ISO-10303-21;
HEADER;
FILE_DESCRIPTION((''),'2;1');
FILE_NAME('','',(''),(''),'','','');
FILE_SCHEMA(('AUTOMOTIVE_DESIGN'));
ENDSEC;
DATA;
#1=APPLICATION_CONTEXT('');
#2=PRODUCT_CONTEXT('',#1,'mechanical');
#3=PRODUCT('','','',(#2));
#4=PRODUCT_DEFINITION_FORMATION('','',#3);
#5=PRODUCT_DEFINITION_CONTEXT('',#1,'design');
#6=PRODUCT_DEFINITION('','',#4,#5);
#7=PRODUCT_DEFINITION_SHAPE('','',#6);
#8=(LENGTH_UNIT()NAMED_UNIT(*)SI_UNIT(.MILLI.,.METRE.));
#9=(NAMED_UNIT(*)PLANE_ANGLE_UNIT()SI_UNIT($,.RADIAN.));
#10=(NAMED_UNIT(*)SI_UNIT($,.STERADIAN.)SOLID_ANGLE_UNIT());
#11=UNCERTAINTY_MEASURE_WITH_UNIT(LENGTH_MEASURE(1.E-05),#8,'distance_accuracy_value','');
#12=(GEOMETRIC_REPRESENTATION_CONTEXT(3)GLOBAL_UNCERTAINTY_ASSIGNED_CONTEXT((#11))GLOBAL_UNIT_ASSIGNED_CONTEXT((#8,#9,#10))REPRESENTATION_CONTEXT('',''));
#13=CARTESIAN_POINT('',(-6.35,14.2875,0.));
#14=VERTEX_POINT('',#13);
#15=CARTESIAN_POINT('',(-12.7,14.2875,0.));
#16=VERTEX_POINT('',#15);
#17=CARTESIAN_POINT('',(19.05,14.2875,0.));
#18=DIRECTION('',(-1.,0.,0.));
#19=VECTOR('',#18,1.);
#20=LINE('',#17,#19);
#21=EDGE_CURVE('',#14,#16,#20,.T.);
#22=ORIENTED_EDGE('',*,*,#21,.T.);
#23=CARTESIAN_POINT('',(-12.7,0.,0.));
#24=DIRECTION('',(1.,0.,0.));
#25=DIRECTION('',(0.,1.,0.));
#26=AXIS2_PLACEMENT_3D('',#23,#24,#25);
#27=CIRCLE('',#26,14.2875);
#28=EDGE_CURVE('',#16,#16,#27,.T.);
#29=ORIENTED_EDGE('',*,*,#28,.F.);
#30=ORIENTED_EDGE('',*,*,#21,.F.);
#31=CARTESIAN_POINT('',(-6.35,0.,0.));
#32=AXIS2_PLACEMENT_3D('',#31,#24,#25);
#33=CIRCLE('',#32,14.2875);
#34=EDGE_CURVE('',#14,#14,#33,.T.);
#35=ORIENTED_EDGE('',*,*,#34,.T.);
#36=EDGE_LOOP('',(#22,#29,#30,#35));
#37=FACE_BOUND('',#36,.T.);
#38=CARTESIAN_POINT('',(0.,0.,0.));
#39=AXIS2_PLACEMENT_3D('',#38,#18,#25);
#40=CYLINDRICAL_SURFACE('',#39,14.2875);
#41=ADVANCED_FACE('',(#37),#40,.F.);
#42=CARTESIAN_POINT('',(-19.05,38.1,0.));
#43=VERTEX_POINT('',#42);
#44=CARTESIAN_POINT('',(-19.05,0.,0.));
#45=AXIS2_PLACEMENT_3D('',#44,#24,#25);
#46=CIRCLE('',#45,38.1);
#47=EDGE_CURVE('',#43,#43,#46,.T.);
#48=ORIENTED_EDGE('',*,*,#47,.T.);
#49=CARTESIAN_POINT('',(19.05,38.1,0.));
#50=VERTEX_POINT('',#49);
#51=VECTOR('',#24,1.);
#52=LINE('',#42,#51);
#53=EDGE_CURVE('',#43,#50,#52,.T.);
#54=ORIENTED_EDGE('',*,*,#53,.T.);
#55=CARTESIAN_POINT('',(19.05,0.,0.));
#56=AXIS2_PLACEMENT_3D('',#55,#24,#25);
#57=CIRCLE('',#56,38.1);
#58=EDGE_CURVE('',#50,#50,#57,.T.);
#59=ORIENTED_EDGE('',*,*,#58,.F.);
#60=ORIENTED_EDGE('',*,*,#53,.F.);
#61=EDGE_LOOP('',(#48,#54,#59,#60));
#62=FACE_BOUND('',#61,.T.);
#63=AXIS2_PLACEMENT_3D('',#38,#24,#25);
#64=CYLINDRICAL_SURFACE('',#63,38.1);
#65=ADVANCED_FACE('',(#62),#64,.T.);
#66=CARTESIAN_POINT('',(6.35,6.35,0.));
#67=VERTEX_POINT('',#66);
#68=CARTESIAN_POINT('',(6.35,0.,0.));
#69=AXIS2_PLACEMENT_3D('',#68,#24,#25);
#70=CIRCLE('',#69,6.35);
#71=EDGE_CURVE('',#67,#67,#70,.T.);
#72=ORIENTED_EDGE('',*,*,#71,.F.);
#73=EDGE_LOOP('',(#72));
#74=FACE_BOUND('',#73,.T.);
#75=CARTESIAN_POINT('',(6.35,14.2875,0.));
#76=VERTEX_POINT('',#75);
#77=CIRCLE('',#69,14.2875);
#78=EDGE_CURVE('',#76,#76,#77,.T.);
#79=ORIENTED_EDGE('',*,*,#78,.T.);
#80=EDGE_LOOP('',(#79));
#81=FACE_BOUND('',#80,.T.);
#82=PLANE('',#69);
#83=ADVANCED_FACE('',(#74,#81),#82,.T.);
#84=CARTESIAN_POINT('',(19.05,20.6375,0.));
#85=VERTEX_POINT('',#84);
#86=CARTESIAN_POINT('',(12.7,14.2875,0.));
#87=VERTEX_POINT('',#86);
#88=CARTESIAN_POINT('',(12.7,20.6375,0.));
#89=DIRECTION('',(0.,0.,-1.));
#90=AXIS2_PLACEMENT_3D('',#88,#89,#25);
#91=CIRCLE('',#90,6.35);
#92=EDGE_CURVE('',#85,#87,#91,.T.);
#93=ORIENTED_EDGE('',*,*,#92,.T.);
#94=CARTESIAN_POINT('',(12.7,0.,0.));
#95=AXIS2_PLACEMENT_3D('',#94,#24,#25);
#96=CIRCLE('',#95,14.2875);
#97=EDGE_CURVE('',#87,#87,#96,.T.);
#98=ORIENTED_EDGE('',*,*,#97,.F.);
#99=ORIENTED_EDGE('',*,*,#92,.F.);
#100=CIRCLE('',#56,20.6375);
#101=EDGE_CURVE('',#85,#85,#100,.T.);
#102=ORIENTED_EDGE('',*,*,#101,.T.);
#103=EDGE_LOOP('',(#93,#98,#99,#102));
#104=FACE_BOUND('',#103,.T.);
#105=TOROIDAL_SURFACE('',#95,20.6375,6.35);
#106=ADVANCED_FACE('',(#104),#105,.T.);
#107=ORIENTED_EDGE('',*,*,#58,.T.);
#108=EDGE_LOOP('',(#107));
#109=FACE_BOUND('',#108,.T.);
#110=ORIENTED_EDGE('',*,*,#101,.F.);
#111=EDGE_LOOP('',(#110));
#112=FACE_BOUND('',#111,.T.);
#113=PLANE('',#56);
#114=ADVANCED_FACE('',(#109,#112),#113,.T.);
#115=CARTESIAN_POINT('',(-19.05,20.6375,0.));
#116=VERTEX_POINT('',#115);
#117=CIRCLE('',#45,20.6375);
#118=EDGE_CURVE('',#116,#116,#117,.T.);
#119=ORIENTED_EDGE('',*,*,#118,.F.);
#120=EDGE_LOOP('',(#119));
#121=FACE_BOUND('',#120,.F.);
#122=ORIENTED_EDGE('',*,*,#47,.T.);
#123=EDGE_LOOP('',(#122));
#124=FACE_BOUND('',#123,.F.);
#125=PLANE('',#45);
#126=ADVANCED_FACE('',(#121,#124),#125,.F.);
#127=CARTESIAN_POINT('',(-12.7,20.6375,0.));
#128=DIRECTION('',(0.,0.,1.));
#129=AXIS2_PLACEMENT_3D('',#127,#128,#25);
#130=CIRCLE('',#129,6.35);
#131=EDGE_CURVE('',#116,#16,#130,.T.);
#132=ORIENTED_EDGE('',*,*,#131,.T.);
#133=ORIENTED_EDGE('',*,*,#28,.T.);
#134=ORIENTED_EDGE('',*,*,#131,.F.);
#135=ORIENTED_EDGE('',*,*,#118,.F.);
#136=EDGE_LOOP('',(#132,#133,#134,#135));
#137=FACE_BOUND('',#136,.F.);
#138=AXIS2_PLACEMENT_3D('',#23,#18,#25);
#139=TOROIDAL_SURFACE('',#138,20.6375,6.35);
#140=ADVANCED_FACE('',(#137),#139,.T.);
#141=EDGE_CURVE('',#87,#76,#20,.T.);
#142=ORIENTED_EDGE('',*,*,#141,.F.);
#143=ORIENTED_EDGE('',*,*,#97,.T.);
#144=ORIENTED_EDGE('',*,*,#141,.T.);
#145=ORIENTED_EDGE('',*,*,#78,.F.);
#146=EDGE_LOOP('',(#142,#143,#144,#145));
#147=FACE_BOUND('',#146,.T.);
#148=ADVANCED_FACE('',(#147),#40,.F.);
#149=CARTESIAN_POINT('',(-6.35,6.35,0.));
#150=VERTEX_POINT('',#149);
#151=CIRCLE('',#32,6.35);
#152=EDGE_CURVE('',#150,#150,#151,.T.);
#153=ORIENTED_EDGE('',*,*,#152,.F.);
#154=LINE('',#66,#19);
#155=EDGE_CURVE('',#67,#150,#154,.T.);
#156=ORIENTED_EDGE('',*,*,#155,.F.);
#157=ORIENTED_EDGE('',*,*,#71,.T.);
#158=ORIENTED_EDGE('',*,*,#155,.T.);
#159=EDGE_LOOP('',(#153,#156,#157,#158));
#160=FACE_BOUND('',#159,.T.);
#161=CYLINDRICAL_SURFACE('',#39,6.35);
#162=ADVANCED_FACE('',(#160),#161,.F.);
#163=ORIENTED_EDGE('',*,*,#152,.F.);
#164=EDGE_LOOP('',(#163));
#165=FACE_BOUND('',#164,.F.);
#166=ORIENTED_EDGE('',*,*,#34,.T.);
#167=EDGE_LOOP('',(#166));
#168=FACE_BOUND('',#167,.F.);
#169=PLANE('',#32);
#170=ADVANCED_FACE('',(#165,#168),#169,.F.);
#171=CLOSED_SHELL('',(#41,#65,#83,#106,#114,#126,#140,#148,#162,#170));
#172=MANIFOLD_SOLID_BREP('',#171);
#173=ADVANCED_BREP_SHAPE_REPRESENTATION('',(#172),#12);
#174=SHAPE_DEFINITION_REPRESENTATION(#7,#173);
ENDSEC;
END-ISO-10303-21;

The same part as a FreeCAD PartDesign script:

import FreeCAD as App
import Part
import Sketcher
Q = App.Units.Quantity


def edges_at(feature, points):
    """Names of the edges that pass closest to the given points."""
    edges = feature.Shape.Edges
    near = lambda p: min(range(len(edges)), key=lambda i: edges[i].distToShape(Part.Vertex(*p))[0])
    return sorted({f"Edge{near(p) + 1}" for p in points})

doc = App.newDocument("Part")
params = doc.addObject("Spreadsheet::Sheet", "Params")
for row, (alias, value) in enumerate([
    ("sketch1_diameter", "3 in"),
    ("sketch1_diameter2", "1.125 in"),
    ("pad1_length", "1.5 in"),
    ("sketch2_diameter", "0.5 in"),
    ("sketch2_diameter2", "1.125 in"),
    ("pad2_length", "0.5 in"),
    ("fillet_radius", "0.25 in"),
], start=1):
    params.set(f"A{row}", alias)
    params.set(f"B{row}", "=" + value)
    params.setAlias(f"B{row}", alias)

body = doc.addObject("PartDesign::Body", "Body")

# Sketch on YZ plane
sketch1 = body.newObject("Sketcher::SketchObject", "Sketch")
sketch1.AttachmentSupport = (doc.getObject("YZ_Plane"), [""])
sketch1.MapMode = "FlatFace"
sketch1.addGeometry([
    Part.Circle(App.Vector(0, 0, 0), App.Vector(0, 0, 1), 38.1),
    Part.Circle(App.Vector(0, 0, 0), App.Vector(0, 0, 1), 14.2875),
], False)
sketch1.addConstraint([
    Sketcher.Constraint("Coincident", 0, 3, -1, 1),
    Sketcher.Constraint("Coincident", 1, 3, -1, 1),
    Sketcher.Constraint("Diameter", 0, Q("3 in")),
    Sketcher.Constraint("Diameter", 1, Q("1.125 in")),
])
sketch1.setExpression("Constraints[2]", "Params.sketch1_diameter")
sketch1.setExpression("Constraints[3]", "Params.sketch1_diameter2")
pad1 = body.newObject("PartDesign::Pad", "Pad")
pad1.Profile = sketch1
pad1.setExpression("Length", "Params.pad1_length")
pad1.Midplane = True

# Sketch on YZ plane
sketch2 = body.newObject("Sketcher::SketchObject", "Sketch001")
sketch2.AttachmentSupport = (doc.getObject("YZ_Plane"), [""])
sketch2.MapMode = "FlatFace"
sketch2.addGeometry([
    Part.Circle(App.Vector(0, 0, 0), App.Vector(0, 0, 1), 14.2875),
    Part.Circle(App.Vector(0, 0, 0), App.Vector(0, 0, 1), 6.35),
], False)
sketch2.addConstraint([
    Sketcher.Constraint("Coincident", 0, 3, -1, 1),
    Sketcher.Constraint("Coincident", 1, 3, -1, 1),
    Sketcher.Constraint("Diameter", 1, Q("0.5 in")),
    Sketcher.Constraint("Diameter", 0, Q("1.125 in")),
])
sketch2.setExpression("Constraints[2]", "Params.sketch2_diameter")
sketch2.setExpression("Constraints[3]", "Params.sketch2_diameter2")
pad2 = body.newObject("PartDesign::Pad", "Pad001")
pad2.Profile = sketch2
pad2.setExpression("Length", "Params.pad2_length")
pad2.Midplane = True
doc.recompute()

fillet = body.newObject("PartDesign::Fillet", "Fillet")
fillet.Base = (pad2, edges_at(pad2, [(-19.05, -14.287, 0), (19.05, -14.287, 0)]))
fillet.setExpression("Radius", "Params.fillet_radius")

doc.recompute()
